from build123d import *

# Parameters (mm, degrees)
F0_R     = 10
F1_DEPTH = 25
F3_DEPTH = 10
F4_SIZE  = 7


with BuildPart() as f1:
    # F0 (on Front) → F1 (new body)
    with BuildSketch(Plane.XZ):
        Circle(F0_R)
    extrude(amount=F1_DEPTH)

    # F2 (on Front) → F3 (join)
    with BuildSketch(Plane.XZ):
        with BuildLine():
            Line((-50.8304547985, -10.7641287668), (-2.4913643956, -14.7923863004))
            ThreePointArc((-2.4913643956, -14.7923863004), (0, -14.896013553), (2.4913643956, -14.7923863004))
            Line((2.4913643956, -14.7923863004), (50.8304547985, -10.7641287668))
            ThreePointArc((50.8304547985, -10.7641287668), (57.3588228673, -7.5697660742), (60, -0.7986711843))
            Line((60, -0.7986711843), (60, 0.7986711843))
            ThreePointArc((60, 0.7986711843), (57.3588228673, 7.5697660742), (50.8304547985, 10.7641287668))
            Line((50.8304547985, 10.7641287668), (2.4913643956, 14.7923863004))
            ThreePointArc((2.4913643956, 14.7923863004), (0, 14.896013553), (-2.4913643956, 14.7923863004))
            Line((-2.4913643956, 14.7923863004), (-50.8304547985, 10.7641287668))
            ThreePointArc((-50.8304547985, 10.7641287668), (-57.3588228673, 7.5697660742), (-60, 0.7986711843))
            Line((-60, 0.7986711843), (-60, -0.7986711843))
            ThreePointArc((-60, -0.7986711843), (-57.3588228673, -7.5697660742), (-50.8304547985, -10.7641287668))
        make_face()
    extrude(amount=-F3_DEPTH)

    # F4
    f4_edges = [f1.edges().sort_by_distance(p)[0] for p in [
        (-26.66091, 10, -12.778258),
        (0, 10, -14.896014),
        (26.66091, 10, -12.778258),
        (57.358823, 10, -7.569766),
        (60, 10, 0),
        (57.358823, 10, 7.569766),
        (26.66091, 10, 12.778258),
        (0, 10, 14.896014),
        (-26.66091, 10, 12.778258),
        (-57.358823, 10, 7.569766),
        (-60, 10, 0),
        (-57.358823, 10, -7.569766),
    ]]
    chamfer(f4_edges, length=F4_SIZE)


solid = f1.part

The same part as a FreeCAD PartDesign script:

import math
import FreeCAD as App
import Part
import Sketcher
from FreeCAD import Vector
Q = App.Units.Quantity


def edges_at(feature, points):
    """Names of the edges that pass closest to the given points."""
    edges = feature.Shape.Edges
    near = lambda p: min(range(len(edges)), key=lambda i: edges[i].distToShape(Part.Vertex(*p))[0])
    return sorted({f"Edge{near(p) + 1}" for p in points})

doc = App.newDocument("Part")
body = doc.addObject("PartDesign::Body", "Body")

sketch1 = body.newObject("Sketcher::SketchObject", "Sketch")
sketch1.AttachmentSupport = (doc.getObject("XZ_Plane"), [""])
sketch1.MapMode = "FlatFace"
sketch1.addGeometry(Part.Circle(Vector(0, 0, 0), Vector(0, 0, 1), 10), False)
sketch1.addConstraint(Sketcher.Constraint("Coincident", 0, 3, -1, 1))
sketch1.addConstraint(Sketcher.Constraint("Diameter", 0, Q("20 mm")))
pad1 = body.newObject("PartDesign::Pad", "Pad")
pad1.Profile = sketch1
pad1.Length = 25

sketch2 = body.newObject("Sketcher::SketchObject", "Sketch001")
sketch2.AttachmentSupport = (doc.getObject("XZ_Plane"), [""])
sketch2.MapMode = "FlatFace"
sketch2.addGeometry(Part.LineSegment(Vector(-50.8, -10.8, 0), Vector(-2.5, -14.8, 0)), False)
sketch2.addGeometry(Part.ArcOfCircle(Part.Circle(Vector(0, 15.1, 0), Vector(0, 0, 1), 30), math.radians(-94.76), math.radians(-85.24)), False)
sketch2.addGeometry(Part.LineSegment(Vector(2.5, -14.8, 0), Vector(50.8, -10.8, 0)), False)
sketch2.addGeometry(Part.ArcOfCircle(Part.Circle(Vector(50, -0.8, 0), Vector(0, 0, 1), 10), math.radians(-85), math.radians(0)), False)
sketch2.addGeometry(Part.LineSegment(Vector(60, -0.8, 0), Vector(60, 0.8, 0)), False)
sketch2.addGeometry(Part.ArcOfCircle(Part.Circle(Vector(50, 0.8, 0), Vector(0, 0, 1), 10), math.radians(0), math.radians(85)), False)
sketch2.addGeometry(Part.LineSegment(Vector(50.8, 10.8, 0), Vector(2.5, 14.8, 0)), False)
sketch2.addGeometry(Part.ArcOfCircle(Part.Circle(Vector(0, -15.1, 0), Vector(0, 0, 1), 30), math.radians(85.24), math.radians(94.76)), False)
sketch2.addGeometry(Part.LineSegment(Vector(-2.5, 14.8, 0), Vector(-50.8, 10.8, 0)), False)
sketch2.addGeometry(Part.ArcOfCircle(Part.Circle(Vector(-50, 0.8, 0), Vector(0, 0, 1), 10), math.radians(95), math.radians(180)), False)
sketch2.addGeometry(Part.LineSegment(Vector(-60, 0.8, 0), Vector(-60, -0.8, 0)), False)
sketch2.addGeometry(Part.ArcOfCircle(Part.Circle(Vector(-50, -0.8, 0), Vector(0, 0, 1), 10), math.radians(180), math.radians(265)), False)
sketch2.addConstraint(Sketcher.Constraint("Tangent", 0, 2, 1, 1))
sketch2.addConstraint(Sketcher.Constraint("Tangent", 1, 2, 2, 1))
sketch2.addConstraint(Sketcher.Constraint("Tangent", 2, 2, 3, 1))
sketch2.addConstraint(Sketcher.Constraint("Tangent", 3, 2, 4, 1))
sketch2.addConstraint(Sketcher.Constraint("Tangent", 4, 2, 5, 1))
sketch2.addConstraint(Sketcher.Constraint("Tangent", 5, 2, 6, 1))
sketch2.addConstraint(Sketcher.Constraint("Tangent", 6, 2, 7, 1))
sketch2.addConstraint(Sketcher.Constraint("Tangent", 7, 2, 8, 1))
sketch2.addConstraint(Sketcher.Constraint("Tangent", 8, 2, 9, 1))
sketch2.addConstraint(Sketcher.Constraint("Tangent", 9, 2, 10, 1))
sketch2.addConstraint(Sketcher.Constraint("Tangent", 10, 2, 11, 1))
sketch2.addConstraint(Sketcher.Constraint("Tangent", 11, 2, 0, 1))
sketch2.addConstraint(Sketcher.Constraint("Vertical", 4))
sketch2.addConstraint(Sketcher.Constraint("Vertical", 10))
sketch2.addConstraint(Sketcher.Constraint("Equal", 3, 5))
sketch2.addConstraint(Sketcher.Constraint("Equal", 1, 7))
sketch2.addConstraint(Sketcher.Constraint("Equal", 5, 9))
sketch2.addConstraint(Sketcher.Constraint("Equal", 9, 11))
sketch2.addConstraint(Sketcher.Constraint("Symmetric", 1, 3, 7, 3, -1, 1))
sketch2.addConstraint(Sketcher.Constraint("Symmetric", 3, 3, 9, 3, -1, 1))
sketch2.addConstraint(Sketcher.Constraint("Symmetric", 0, 2, 1, 2, -2))
sketch2.addConstraint(Sketcher.Constraint("Parallel", 0, 6))
sketch2.addConstraint(Sketcher.Constraint("Radius", 1, Q("30 mm")))
sketch2.addConstraint(Sketcher.Constraint("Radius", 3, Q("10 mm")))
sketch2.addConstraint(Sketcher.Constraint("DistanceX", -1, 1, 3, 3, Q("50 mm")))
sketch2.addConstraint(Sketcher.Constraint("DistanceY", 7, 3, 0, 2, Q("0.3116 mm")))
sketch2.addConstraint(Sketcher.Constraint("DistanceY", 2, 2, 5, 3, Q("11.5628 mm")))
pad2 = body.newObject("PartDesign::Pad", "Pad001")
pad2.Profile = sketch2
pad2.Length = 10
pad2.Reversed = True
doc.recompute()

chamfer = body.newObject("PartDesign::Chamfer", "Chamfer")
chamfer.Base = (pad2, edges_at(pad2, [
    (-26.661, 10, -12.778),
    (0, 10, -14.896),
    (26.661, 10, -12.778),
    (57.359, 10, -7.57),
    (60, 10, 0),
    (57.359, 10, 7.57),
    (26.661, 10, 12.778),
    (0, 10, 14.896),
    (-26.661, 10, 12.778),
    (-57.359, 10, 7.57),
    (-60, 10, 0),
    (-57.359, 10, -7.57),
]))
chamfer.Size = 7

doc.recompute()
